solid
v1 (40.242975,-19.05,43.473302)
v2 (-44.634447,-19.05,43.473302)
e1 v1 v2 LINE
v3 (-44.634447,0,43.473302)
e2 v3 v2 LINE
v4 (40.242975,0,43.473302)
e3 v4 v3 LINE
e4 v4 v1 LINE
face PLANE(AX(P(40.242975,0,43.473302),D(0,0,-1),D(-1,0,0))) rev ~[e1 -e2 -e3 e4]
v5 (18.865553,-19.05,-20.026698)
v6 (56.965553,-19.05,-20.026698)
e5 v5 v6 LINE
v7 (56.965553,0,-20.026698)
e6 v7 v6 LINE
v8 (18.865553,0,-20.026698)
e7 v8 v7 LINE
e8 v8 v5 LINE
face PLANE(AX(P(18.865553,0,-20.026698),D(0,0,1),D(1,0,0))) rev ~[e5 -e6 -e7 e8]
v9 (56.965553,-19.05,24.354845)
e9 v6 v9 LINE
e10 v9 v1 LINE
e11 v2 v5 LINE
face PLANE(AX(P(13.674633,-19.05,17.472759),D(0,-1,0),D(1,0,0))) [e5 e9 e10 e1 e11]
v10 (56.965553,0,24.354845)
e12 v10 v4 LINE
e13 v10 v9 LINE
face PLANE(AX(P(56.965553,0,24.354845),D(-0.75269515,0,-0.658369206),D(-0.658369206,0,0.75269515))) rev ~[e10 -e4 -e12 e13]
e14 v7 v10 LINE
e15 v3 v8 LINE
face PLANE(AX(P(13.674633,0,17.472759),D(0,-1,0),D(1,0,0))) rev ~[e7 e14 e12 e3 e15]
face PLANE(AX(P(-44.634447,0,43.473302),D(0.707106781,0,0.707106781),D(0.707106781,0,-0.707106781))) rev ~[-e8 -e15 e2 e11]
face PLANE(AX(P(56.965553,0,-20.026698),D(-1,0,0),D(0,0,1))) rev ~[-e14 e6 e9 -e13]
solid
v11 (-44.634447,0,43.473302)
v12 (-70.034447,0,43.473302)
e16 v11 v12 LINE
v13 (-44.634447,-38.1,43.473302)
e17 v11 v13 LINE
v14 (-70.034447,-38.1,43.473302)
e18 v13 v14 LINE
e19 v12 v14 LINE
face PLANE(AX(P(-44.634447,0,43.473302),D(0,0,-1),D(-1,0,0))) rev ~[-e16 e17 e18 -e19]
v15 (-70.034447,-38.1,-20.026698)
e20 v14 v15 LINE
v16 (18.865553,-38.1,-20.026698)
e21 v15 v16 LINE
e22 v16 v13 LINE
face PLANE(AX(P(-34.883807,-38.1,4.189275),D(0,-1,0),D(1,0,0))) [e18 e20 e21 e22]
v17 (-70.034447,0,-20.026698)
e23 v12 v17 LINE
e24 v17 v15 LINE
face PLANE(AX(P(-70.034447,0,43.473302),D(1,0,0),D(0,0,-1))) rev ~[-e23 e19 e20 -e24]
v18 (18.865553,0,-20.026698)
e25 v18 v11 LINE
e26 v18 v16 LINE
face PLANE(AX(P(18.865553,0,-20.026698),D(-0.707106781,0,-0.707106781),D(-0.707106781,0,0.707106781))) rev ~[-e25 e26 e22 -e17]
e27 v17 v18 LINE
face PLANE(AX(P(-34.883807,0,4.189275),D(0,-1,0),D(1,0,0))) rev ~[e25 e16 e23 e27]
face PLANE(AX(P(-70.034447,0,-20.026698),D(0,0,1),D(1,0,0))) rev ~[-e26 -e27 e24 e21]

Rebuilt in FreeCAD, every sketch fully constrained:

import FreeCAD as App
import Part
import Sketcher
Q = App.Units.Quantity

doc = App.newDocument("Part")
body = doc.addObject("PartDesign::Body", "Body")

# Sketch on XZ plane
sketch1 = body.newObject("Sketcher::SketchObject", "Sketch")
sketch1.AttachmentSupport = (doc.getObject("XZ_Plane"), [""])
sketch1.MapMode = "FlatFace"
sketch1.addGeometry([
    Part.LineSegment(App.Vector(-45, 43, 0), App.Vector(-70, 43, 0)),
    Part.LineSegment(App.Vector(-70, 43, 0), App.Vector(-70, -20, 0)),
    Part.LineSegment(App.Vector(-70, -20, 0), App.Vector(19, -20, 0)),
    Part.LineSegment(App.Vector(19, -20, 0), App.Vector(-45, 43, 0)),
], False)
sketch1.addConstraint([
    Sketcher.Constraint("Coincident", 0, 2, 1, 1),
    Sketcher.Constraint("Coincident", 1, 2, 2, 1),
    Sketcher.Constraint("Coincident", 2, 2, 3, 1),
    Sketcher.Constraint("Coincident", 3, 2, 0, 1),
    Sketcher.Constraint("Horizontal", 0),
    Sketcher.Constraint("Vertical", 1),
    Sketcher.Constraint("Horizontal", 2),
    Sketcher.Constraint("DistanceX", 0, 2, 0, 1, Q("1 in")),
    Sketcher.Constraint("DistanceX", 2, 1, 2, 2, Q("3.5 in")),
    Sketcher.Constraint("DistanceY", 1, 2, 1, 1, Q("2.5 in")),
    Sketcher.Constraint("DistanceY", -1, 1, 0, 2, 43.473302),
    Sketcher.Constraint("DistanceX", 0, 2, -1, 1, 70.034447),
])
pad1 = body.newObject("PartDesign::Pad", "Pad")
pad1.Profile = sketch1
pad1.Length = Q("1.5 in")
body2 = doc.addObject("PartDesign::Body", "Body001")

# Sketch on XZ plane
sketch2 = body2.newObject("Sketcher::SketchObject", "Sketch001")
sketch2.AttachmentSupport = (doc.getObject("XZ_Plane001"), [""])
sketch2.MapMode = "FlatFace"
sketch2.addGeometry([
    Part.LineSegment(App.Vector(40, 43, 0), App.Vector(-45, 43, 0)),  # 0
    Part.LineSegment(App.Vector(-45, 43, 0), App.Vector(19, -20, 0)),  # 1
    Part.LineSegment(App.Vector(19, -20, 0), App.Vector(57, -20, 0)),  # 2
    Part.LineSegment(App.Vector(57, -20, 0), App.Vector(57, 24, 0)),  # 3
    Part.LineSegment(App.Vector(57, 24, 0), App.Vector(40, 43, 0)),  # 4
], False)
sketch2.addConstraint([
    Sketcher.Constraint("Coincident", 0, 2, 1, 1),
    Sketcher.Constraint("Coincident", 1, 2, 2, 1),
    Sketcher.Constraint("Coincident", 2, 2, 3, 1),
    Sketcher.Constraint("Coincident", 3, 2, 4, 1),
    Sketcher.Constraint("Coincident", 4, 2, 0, 1),
    Sketcher.Constraint("Horizontal", 0),
    Sketcher.Constraint("Horizontal", 2),
    Sketcher.Constraint("Vertical", 3),
    Sketcher.Constraint("Distance", 4, Q("1 in")),
    Sketcher.Constraint("DistanceX", 2, 1, 2, 2, Q("1.5 in")),
    Sketcher.Constraint("Angle", 1, Q("-45 deg")),
    Sketcher.Constraint("DistanceX", 0, 2, 2, 2, Q("4 in")),
    Sketcher.Constraint("DistanceX", 0, 2, 0, 1, 84.877422),
    Sketcher.Constraint("DistanceY", -1, 1, 0, 2, 43.473302),
    Sketcher.Constraint("DistanceX", 0, 2, -1, 1, 44.634447),
])
pad2 = body2.newObject("PartDesign::Pad", "Pad001")
pad2.Profile = sketch2
pad2.Length = Q("0.75 in")

doc.recompute()
